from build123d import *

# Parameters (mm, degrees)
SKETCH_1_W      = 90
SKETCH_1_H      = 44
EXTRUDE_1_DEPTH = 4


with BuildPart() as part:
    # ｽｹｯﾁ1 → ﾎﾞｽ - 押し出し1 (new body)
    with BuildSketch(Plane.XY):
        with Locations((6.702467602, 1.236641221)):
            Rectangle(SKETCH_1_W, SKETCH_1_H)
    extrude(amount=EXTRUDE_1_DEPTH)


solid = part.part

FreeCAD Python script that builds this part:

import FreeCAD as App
import Part
import Sketcher

V = App.Vector

doc = App.newDocument("Part")
body = doc.addObject("PartDesign::Body", "Body")

# Sketch on XY plane
sketch1 = doc.addObject("Sketcher::SketchObject", "Sketch")
body.addObject(sketch1)
sketch1.AttachmentSupport = (doc.XY_Plane, [""])
sketch1.MapMode = "FlatFace"
sketch1.addGeometry([
    Part.LineSegment(V(-38, 23, 0), V(-38, -21, 0)),
    Part.LineSegment(V(-38, -21, 0), V(52, -21, 0)),
    Part.LineSegment(V(52, -21, 0), V(52, 23, 0)),
    Part.LineSegment(V(52, 23, 0), V(-38, 23, 0)),
], False)
sketch1.addConstraint([
    Sketcher.Constraint("Coincident", 0, 2, 1, 1),
    Sketcher.Constraint("Coincident", 1, 2, 2, 1),
    Sketcher.Constraint("Coincident", 2, 2, 3, 1),
    Sketcher.Constraint("Coincident", 3, 2, 0, 1),
    Sketcher.Constraint("Vertical", 0),
    Sketcher.Constraint("Horizontal", 1),
    Sketcher.Constraint("Vertical", 2),
    Sketcher.Constraint("Horizontal", 3),
    Sketcher.Constraint("DistanceX", 1, 1, 1, 2, 90.0),
    Sketcher.Constraint("DistanceY", 0, 2, 0, 1, 44.0),
    Sketcher.Constraint("DistanceY", 0, 2, -1, 1, 20.763359),
    Sketcher.Constraint("DistanceX", 0, 2, -1, 1, 38.297532),
])
pad1 = doc.addObject("PartDesign::Pad", "Pad")
body.addObject(pad1)
pad1.Profile = sketch1
pad1.Length = 4

doc.recompute()
